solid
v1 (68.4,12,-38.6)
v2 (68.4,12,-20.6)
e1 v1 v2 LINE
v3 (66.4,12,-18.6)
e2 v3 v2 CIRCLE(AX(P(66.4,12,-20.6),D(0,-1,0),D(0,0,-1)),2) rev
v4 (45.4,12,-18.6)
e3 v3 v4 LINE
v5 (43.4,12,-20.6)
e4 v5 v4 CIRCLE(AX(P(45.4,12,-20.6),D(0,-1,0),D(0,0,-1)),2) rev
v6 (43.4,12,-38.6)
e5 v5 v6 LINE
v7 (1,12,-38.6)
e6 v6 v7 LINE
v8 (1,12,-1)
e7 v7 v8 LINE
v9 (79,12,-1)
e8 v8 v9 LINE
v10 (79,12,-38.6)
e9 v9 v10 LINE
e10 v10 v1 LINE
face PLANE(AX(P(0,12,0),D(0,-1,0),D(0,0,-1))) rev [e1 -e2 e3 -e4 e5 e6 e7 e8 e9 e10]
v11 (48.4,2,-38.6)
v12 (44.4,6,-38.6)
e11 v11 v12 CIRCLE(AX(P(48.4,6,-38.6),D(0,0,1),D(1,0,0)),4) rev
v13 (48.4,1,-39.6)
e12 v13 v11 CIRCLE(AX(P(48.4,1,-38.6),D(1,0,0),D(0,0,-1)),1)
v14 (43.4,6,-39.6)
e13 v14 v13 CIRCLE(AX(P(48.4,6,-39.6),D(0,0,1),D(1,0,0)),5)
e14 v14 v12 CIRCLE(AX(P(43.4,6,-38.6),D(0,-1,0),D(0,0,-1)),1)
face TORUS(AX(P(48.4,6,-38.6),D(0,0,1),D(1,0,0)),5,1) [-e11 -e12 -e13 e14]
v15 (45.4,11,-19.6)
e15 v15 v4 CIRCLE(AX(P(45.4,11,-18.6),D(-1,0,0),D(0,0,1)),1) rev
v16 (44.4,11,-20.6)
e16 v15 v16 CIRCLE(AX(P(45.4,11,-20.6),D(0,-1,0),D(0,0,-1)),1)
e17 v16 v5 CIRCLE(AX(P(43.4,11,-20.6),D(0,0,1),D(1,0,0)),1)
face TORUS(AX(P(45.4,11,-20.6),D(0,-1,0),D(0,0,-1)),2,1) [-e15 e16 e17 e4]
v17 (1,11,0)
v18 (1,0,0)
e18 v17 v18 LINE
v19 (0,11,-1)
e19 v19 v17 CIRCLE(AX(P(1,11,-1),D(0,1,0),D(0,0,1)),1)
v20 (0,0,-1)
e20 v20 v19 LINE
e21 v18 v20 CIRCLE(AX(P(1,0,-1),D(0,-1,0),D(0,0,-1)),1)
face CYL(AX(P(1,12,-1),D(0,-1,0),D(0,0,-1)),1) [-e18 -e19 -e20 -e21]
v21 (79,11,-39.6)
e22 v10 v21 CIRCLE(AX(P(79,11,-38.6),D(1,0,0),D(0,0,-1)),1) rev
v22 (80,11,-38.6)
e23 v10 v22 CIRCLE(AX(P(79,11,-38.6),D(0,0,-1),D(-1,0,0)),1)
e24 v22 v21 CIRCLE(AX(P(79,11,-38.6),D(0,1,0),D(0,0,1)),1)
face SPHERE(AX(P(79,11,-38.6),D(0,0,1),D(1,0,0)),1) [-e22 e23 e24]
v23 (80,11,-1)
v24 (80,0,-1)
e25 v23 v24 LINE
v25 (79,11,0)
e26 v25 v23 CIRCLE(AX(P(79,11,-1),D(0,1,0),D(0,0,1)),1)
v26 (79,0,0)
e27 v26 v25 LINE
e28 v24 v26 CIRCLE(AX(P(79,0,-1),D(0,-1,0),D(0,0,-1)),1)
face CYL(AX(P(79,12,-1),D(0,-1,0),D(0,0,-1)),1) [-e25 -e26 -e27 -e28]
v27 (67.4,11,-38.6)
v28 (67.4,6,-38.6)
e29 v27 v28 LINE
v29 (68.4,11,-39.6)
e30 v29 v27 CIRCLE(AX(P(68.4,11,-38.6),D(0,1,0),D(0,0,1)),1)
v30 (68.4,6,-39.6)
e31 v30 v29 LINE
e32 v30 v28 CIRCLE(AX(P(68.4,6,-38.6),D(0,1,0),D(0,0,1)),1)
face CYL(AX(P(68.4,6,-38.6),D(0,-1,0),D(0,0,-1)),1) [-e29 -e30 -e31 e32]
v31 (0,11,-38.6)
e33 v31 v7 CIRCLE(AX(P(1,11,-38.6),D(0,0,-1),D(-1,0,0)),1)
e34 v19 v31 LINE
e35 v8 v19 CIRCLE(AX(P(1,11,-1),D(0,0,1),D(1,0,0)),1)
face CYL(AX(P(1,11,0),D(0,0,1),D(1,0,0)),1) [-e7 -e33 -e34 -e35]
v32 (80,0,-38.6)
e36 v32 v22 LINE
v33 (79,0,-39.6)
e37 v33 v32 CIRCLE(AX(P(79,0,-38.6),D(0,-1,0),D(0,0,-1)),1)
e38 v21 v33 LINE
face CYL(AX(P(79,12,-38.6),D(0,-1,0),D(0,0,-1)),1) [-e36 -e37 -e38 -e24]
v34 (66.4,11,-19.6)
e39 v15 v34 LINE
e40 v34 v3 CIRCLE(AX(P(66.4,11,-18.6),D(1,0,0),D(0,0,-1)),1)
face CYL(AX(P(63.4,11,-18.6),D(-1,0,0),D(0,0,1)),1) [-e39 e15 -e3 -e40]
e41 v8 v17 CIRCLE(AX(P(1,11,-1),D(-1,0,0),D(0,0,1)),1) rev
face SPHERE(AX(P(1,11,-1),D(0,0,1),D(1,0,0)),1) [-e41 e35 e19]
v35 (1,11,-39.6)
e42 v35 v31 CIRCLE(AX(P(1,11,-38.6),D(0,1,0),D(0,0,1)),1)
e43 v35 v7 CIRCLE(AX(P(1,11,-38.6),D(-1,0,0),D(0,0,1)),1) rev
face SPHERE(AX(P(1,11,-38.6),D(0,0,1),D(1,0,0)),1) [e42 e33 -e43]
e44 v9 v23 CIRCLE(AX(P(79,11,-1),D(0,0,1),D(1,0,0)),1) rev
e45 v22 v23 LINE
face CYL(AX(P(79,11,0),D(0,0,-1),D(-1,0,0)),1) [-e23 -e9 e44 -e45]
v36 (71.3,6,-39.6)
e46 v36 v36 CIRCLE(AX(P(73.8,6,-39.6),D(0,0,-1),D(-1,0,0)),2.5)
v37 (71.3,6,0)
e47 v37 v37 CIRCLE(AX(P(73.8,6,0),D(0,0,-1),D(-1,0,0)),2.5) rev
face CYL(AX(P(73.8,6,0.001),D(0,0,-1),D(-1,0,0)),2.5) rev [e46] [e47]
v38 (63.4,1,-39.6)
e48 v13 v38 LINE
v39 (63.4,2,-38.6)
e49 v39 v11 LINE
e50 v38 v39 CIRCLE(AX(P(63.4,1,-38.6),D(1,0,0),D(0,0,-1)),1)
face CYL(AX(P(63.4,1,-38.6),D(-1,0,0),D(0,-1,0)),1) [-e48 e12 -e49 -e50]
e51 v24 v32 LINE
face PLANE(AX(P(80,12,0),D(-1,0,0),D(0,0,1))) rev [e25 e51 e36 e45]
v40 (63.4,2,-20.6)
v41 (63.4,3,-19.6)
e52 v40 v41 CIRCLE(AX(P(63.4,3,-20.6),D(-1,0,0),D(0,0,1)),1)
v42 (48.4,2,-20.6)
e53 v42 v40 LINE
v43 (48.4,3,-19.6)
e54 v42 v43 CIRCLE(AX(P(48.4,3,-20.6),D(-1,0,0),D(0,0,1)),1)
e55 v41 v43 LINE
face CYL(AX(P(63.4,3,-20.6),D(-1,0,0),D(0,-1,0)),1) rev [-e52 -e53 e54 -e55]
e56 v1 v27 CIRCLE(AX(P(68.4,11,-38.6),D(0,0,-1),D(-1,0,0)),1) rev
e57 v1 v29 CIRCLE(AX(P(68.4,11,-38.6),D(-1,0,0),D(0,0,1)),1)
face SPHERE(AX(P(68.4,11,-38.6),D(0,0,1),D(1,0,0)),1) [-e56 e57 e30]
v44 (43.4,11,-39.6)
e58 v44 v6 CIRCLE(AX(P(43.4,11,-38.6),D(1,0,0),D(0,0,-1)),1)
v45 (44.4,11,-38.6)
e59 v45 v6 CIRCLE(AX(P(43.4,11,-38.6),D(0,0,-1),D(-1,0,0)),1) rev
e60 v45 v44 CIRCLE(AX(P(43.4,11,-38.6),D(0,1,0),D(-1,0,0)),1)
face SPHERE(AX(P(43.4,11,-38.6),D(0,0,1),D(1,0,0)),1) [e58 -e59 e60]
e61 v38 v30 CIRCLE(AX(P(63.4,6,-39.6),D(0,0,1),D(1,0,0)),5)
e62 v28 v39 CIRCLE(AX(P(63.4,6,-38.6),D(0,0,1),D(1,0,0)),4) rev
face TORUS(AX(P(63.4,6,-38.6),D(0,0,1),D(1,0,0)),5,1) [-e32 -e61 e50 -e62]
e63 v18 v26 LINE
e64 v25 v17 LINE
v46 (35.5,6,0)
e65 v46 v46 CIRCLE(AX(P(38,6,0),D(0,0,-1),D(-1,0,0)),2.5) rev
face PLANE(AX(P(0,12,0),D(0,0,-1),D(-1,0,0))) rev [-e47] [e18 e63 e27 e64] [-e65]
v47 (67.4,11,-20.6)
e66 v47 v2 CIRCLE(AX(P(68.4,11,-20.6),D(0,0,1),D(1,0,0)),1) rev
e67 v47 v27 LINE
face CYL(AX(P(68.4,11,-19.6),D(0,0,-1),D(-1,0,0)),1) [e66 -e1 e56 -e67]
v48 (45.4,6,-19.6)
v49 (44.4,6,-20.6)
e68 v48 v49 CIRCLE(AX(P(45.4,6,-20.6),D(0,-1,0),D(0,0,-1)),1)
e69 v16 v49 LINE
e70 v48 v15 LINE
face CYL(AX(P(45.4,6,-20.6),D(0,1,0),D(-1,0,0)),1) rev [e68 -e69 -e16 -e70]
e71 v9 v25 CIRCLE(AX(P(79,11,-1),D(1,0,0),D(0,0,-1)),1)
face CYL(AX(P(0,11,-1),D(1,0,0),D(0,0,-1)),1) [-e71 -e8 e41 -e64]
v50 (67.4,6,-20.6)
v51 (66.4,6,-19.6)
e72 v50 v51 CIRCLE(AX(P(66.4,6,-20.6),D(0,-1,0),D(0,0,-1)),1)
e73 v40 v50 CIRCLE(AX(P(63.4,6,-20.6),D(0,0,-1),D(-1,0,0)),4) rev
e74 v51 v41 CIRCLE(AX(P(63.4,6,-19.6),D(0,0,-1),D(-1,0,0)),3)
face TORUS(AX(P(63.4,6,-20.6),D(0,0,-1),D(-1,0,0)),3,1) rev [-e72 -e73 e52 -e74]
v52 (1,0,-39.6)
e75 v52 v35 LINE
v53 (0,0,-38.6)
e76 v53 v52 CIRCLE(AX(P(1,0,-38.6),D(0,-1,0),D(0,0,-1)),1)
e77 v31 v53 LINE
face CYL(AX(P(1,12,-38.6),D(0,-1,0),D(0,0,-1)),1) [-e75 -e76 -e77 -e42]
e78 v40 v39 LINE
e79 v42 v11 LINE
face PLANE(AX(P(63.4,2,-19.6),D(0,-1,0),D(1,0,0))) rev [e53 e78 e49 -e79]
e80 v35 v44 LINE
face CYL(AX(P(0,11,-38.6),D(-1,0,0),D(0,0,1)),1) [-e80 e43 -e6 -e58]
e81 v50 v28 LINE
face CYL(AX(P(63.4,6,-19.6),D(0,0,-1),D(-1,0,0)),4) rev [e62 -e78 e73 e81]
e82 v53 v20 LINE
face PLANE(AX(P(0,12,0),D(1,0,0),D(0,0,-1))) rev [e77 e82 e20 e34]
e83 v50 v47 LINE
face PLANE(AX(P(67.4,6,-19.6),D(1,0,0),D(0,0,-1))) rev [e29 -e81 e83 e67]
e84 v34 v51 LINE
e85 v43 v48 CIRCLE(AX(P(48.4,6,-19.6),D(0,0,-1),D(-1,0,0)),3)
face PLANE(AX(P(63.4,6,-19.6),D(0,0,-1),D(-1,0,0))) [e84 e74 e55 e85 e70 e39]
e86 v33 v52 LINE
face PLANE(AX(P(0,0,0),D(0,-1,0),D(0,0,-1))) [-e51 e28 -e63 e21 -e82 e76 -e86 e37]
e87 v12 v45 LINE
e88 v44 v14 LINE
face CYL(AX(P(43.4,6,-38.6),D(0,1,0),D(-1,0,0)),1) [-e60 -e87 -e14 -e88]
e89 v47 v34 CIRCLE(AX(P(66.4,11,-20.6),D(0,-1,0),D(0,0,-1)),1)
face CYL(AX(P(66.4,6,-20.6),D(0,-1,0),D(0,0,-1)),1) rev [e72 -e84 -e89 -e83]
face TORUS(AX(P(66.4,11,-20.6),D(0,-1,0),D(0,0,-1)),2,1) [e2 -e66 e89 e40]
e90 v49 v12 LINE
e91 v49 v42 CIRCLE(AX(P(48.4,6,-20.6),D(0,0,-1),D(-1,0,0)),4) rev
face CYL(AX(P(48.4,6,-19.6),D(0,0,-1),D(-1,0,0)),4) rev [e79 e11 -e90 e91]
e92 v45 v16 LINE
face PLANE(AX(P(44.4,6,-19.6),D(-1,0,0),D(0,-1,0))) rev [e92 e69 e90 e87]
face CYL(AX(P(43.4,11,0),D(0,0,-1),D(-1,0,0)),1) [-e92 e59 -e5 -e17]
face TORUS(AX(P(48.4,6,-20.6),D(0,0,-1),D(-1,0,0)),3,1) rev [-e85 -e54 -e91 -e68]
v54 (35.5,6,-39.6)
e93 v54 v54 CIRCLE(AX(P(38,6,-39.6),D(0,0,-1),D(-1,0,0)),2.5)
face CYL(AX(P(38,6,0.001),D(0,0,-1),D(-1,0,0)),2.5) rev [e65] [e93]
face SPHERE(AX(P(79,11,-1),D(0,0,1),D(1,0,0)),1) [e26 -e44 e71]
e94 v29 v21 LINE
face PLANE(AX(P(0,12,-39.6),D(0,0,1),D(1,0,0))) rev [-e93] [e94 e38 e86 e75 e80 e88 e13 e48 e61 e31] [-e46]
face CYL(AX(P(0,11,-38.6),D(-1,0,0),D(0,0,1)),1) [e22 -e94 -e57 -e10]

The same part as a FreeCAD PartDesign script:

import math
import FreeCAD as App
import Part
import Sketcher


def edges_at(feature, points):
    """Names of the edges that pass closest to the given points."""
    edges = feature.Shape.Edges
    near = lambda p: min(range(len(edges)), key=lambda i: edges[i].distToShape(Part.Vertex(*p))[0])
    return sorted({f"Edge{near(p) + 1}" for p in points})


def add_polygon(sketch, points):
    """Adds a closed chain of lines whose ends are joined by coincident constraints."""
    first, n = sketch.GeometryCount, len(points)
    for a, b in zip(points, points[1:] + points[:1]):
        sketch.addGeometry(Part.LineSegment(App.Vector(*a, 0), App.Vector(*b, 0)), False)
    for i in range(n):
        sketch.addConstraint(Sketcher.Constraint("Coincident", first + i, 2, first + (i + 1) % n, 1))

doc = App.newDocument("Part")
body = doc.addObject("PartDesign::Body", "Body")

# Sketch on XZ plane
sketch1 = body.newObject("Sketcher::SketchObject", "Sketch")
sketch1.AttachmentSupport = (doc.getObject("XZ_Plane"), [""])
sketch1.MapMode = "FlatFace"
add_polygon(sketch1, [(0, -40), (0, 0), (80, 0), (80, -40)])  # lines 0-3
sketch1.addConstraint([
    Sketcher.Constraint("Vertical", 0),
    Sketcher.Constraint("Horizontal", 1),
    Sketcher.Constraint("Vertical", 2),
    Sketcher.Constraint("Horizontal", 3),
    Sketcher.Constraint("Coincident", 0, 2, -1, 1),
    Sketcher.Constraint("DistanceX", 1, 1, 1, 2, 80.0),
    Sketcher.Constraint("DistanceY", 0, 1, 0, 2, 39.6),
])
pad1 = body.newObject("PartDesign::Pad", "Pad")
pad1.Profile = sketch1
pad1.Length = 12
pad1.Reversed = True

# Sketch on XY plane
sketch2 = body.newObject("Sketcher::SketchObject", "Sketch001")
sketch2.AttachmentSupport = (doc.getObject("XY_Plane"), [""])
sketch2.MapMode = "FlatFace"
sketch2.AttachmentOffset = App.Placement(App.Vector(0, 0, -39.6), App.Rotation())
sketch2.addGeometry(Part.Circle(App.Vector(38, 6, 0), App.Vector(0, 0, 1), 2.5), False)
sketch2.addConstraint([
    Sketcher.Constraint("Diameter", 0, 5.0),
    Sketcher.Constraint("DistanceX", -1, 1, 0, 3, 38.0),
    Sketcher.Constraint("DistanceY", -1, 1, 0, 3, 6.0),
])
pocket1 = body.newObject("PartDesign::Pocket", "Pocket")
pocket1.Profile = sketch2
pocket1.Type = "UpToFirst"
pocket1.Reversed = True

# Sketch on XY plane
sketch3 = body.newObject("Sketcher::SketchObject", "Sketch002")
sketch3.AttachmentSupport = (doc.getObject("XY_Plane"), [""])
sketch3.MapMode = "FlatFace"
sketch3.AttachmentOffset = App.Placement(App.Vector(0, 0, -39.6), App.Rotation())
sketch3.addGeometry(Part.Circle(App.Vector(73.8, 6, 0), App.Vector(0, 0, 1), 2.5), False)
sketch3.addConstraint([
    Sketcher.Constraint("Diameter", 0, 5.0),
    Sketcher.Constraint("DistanceY", -1, 1, 0, 3, 6.0),
    Sketcher.Constraint("DistanceX", -1, 1, 0, 3, 73.8),
])
pocket2 = body.newObject("PartDesign::Pocket", "Pocket001")
pocket2.Profile = sketch3
pocket2.Type = "UpToFirst"
pocket2.Reversed = True

# Sketch on XY plane
sketch4 = body.newObject("Sketcher::SketchObject", "Sketch003")
sketch4.AttachmentSupport = (doc.getObject("XY_Plane"), [""])
sketch4.MapMode = "FlatFace"
sketch4.AttachmentOffset = App.Placement(App.Vector(0, 0, -39.6), App.Rotation())
sketch4.addGeometry([
    Part.LineSegment(App.Vector(63.4, 2, 0), App.Vector(48.4, 2, 0)),  # 0
    Part.ArcOfCircle(Part.Circle(App.Vector(48.4, 6, 0), App.Vector(0, 0, 1), 4), math.radians(180), math.radians(270)),  # 1
    Part.LineSegment(App.Vector(44.4, 6, 0), App.Vector(44.4, 12, 0)),  # 2
    Part.LineSegment(App.Vector(44.4, 12, 0), App.Vector(67.4, 12, 0)),  # 3
    Part.LineSegment(App.Vector(67.4, 12, 0), App.Vector(67.4, 6, 0)),  # 4
    Part.ArcOfCircle(Part.Circle(App.Vector(63.4, 6, 0), App.Vector(0, 0, 1), 4), math.radians(-90), math.radians(0)),  # 5
], False)
sketch4.addConstraint([
    Sketcher.Constraint("Tangent", 0, 2, 1, 2),
    Sketcher.Constraint("Tangent", 1, 1, 2, 1),
    Sketcher.Constraint("Coincident", 2, 2, 3, 1),
    Sketcher.Constraint("Coincident", 3, 2, 4, 1),
    Sketcher.Constraint("Tangent", 4, 2, 5, 2),
    Sketcher.Constraint("Tangent", 5, 1, 0, 1),
    Sketcher.Constraint("Horizontal", 0),
    Sketcher.Constraint("Vertical", 2),
    Sketcher.Constraint("Horizontal", 3),
    Sketcher.Constraint("Vertical", 4),
    Sketcher.Constraint("Equal", 1, 5),
    Sketcher.Constraint("Radius", 1, 4.0),
    Sketcher.Constraint("DistanceX", 0, 2, 0, 1, 15.0),
    Sketcher.Constraint("DistanceY", 2, 1, 2, 2, 6.0),
    Sketcher.Constraint("DistanceY", -1, 1, 1, 3, 6.0),
    Sketcher.Constraint("DistanceX", -1, 1, 1, 3, 48.4),
])
pocket3 = body.newObject("PartDesign::Pocket", "Pocket002")
pocket3.Profile = sketch4
pocket3.Length = 20
pocket3.Reversed = True
doc.recompute()

fillet = body.newObject("PartDesign::Fillet", "Fillet")
fillet.Base = (pocket3, edges_at(pocket3, [
    (80, 12, -19.8),
    (73.7, 12, -39.6),
    (22.2, 12, -39.6),
    (66.228, 3.172, -19.6),
    (67.4, 9, -19.6),
    (55.9, 12, -19.6),
    (67.4, 12, -29.6),
    (44.4, 9, -19.6),
    (44.4, 12, -29.6),
    (45.572, 3.172, -19.6),
    (55.9, 2, -19.6),
    (66.228, 3.172, -39.6),
    (55.9, 2, -39.6),
    (45.572, 3.172, -39.6),
    (44.4, 9, -39.6),
    (67.4, 9, -39.6),
    (0, 12, -19.8),
    (40, 12, 0),
    (0, 6, -39.6),
    (80, 6, -39.6),
    (80, 6, 0),
    (0, 6, 0),
]))
fillet.Radius = 1

doc.recompute()
